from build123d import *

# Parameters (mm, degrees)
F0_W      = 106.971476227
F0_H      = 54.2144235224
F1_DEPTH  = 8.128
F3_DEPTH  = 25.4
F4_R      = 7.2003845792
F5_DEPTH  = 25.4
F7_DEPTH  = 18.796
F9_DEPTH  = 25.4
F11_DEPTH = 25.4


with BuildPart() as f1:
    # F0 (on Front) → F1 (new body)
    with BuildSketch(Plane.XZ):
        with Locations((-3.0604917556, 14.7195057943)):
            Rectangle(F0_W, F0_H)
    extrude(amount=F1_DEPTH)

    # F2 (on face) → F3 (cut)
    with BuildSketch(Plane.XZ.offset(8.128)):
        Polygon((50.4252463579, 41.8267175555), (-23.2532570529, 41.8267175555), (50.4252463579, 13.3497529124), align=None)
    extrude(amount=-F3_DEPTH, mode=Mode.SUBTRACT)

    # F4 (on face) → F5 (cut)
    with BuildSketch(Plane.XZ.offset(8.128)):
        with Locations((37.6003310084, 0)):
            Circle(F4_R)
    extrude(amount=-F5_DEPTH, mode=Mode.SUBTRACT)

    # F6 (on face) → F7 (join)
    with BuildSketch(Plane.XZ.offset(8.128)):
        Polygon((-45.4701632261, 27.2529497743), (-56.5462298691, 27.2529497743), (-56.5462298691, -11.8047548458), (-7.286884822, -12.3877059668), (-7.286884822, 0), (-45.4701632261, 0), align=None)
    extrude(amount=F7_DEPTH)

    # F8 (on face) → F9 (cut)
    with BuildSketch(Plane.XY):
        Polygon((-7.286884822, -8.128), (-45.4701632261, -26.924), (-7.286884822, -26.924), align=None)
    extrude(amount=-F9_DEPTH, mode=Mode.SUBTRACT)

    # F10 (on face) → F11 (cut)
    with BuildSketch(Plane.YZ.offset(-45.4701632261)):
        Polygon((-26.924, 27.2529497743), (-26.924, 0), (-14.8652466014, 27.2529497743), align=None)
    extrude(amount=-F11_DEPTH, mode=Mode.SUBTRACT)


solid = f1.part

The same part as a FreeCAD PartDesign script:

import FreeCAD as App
import Part
import Sketcher

V = App.Vector
Q = App.Units.Quantity


def add_polygon(sketch, points):
    """Adds a closed chain of lines whose ends are joined by coincident constraints."""
    first, n = sketch.GeometryCount, len(points)
    for a, b in zip(points, points[1:] + points[:1]):
        sketch.addGeometry(Part.LineSegment(App.Vector(*a, 0), App.Vector(*b, 0)), False)
    for i in range(n):
        sketch.addConstraint(Sketcher.Constraint("Coincident", first + i, 2, first + (i + 1) % n, 1))

doc = App.newDocument("Part")
params = doc.addObject("Spreadsheet::Sheet", "Params")
for row, (alias, value) in enumerate([
    ("pad1_length", "0.32 in"),
    ("pocket1_length", "1 in"),
    ("pocket2_length", "1 in"),
    ("pad2_length", "0.74 in"),
    ("sketch5_height", "0.74 in"),
    ("pocket3_length", "1 in"),
    ("pocket4_length", "1 in"),
], start=1):
    params.set(f"A{row}", alias)
    params.set(f"B{row}", "=" + value)
    params.setAlias(f"B{row}", alias)

body = doc.addObject("PartDesign::Body", "Body")

# Sketch on XZ plane
sketch1 = body.newObject("Sketcher::SketchObject", "Sketch")
sketch1.AttachmentSupport = (doc.getObject("XZ_Plane"), [""])
sketch1.MapMode = "FlatFace"
add_polygon(sketch1, [(-56.54623, 41.826718), (-56.54623, -12.387706), (50.425246, -12.387706), (50.425246, 41.826718)])  # lines 0-3
sketch1.addConstraint([
    Sketcher.Constraint("Vertical", 0),
    Sketcher.Constraint("Horizontal", 1),
    Sketcher.Constraint("Vertical", 2),
    Sketcher.Constraint("Horizontal", 3),
    Sketcher.Constraint("DistanceX", 1, 1, 1, 2, 106.971476),
    Sketcher.Constraint("DistanceY", 0, 2, 0, 1, 54.214424),
    Sketcher.Constraint("DistanceX", 0, 2, -1, 1, 56.54623),
    Sketcher.Constraint("DistanceY", 0, 2, -1, 1, 12.387706),
])
pad1 = body.newObject("PartDesign::Pad", "Pad")
pad1.Profile = sketch1
pad1.setExpression("Length", "Params.pad1_length")

# Sketch on XZ plane
sketch2 = body.newObject("Sketcher::SketchObject", "Sketch001")
sketch2.AttachmentSupport = (doc.getObject("XZ_Plane"), [""])
sketch2.MapMode = "FlatFace"
sketch2.AttachmentOffset = App.Placement(V(0, 0, 0.32 * 25.4), App.Rotation())
add_polygon(sketch2, [(50.425246, 41.826718), (-23.253257, 41.826718), (50.425246, 13.349753)])  # lines 0-2
sketch2.addConstraint([
    Sketcher.Constraint("Horizontal", 0),
    Sketcher.Constraint("Vertical", 2),
    Sketcher.Constraint("Distance", 1, 78.990249),
    Sketcher.Constraint("DistanceX", 0, 2, 0, 1, 73.678503),
    Sketcher.Constraint("DistanceX", 0, 2, -1, 1, 23.253257),
    Sketcher.Constraint("DistanceY", -1, 1, 0, 2, 41.826718),
])
pocket1 = body.newObject("PartDesign::Pocket", "Pocket")
pocket1.Profile = sketch2
pocket1.setExpression("Length", "Params.pocket1_length")

# Sketch on XZ plane
sketch3 = body.newObject("Sketcher::SketchObject", "Sketch002")
sketch3.AttachmentSupport = (doc.getObject("XZ_Plane"), [""])
sketch3.MapMode = "FlatFace"
sketch3.AttachmentOffset = App.Placement(V(0, 0, 0.32 * 25.4), App.Rotation())
sketch3.addGeometry(Part.Circle(V(37.600331, 0, 0), V(0, 0, 1), 7.200385), False)
sketch3.addConstraint([
    Sketcher.Constraint("PointOnObject", 0, 3, -1),
    Sketcher.Constraint("Diameter", 0, 14.400769),
    Sketcher.Constraint("DistanceX", -1, 1, 0, 3, 37.600331),
])
pocket2 = body.newObject("PartDesign::Pocket", "Pocket001")
pocket2.Profile = sketch3
pocket2.setExpression("Length", "Params.pocket2_length")

# Sketch on XZ plane
sketch4 = body.newObject("Sketcher::SketchObject", "Sketch003")
sketch4.AttachmentSupport = (doc.getObject("XZ_Plane"), [""])
sketch4.MapMode = "FlatFace"
sketch4.AttachmentOffset = App.Placement(V(0, 0, 0.32 * 25.4), App.Rotation())
add_polygon(sketch4, [(-45.470163, 27.25295), (-56.54623, 27.25295), (-56.54623, -11.804755), (-7.286885, -12.387706), (-7.286885, 0), (-45.470163, 0)])  # lines 0-5
sketch4.addConstraint([
    Sketcher.Constraint("Horizontal", 0),
    Sketcher.Constraint("Vertical", 1),
    Sketcher.Constraint("Vertical", 3),
    Sketcher.Constraint("Horizontal", 4),
    Sketcher.Constraint("Vertical", 5),
    Sketcher.Constraint("PointOnObject", 3, 2, -1),
    Sketcher.Constraint("DistanceX", 4, 2, 4, 1, 38.183278),
    Sketcher.Constraint("DistanceY", 5, 1, 5, 2, 27.25295),
    Sketcher.Constraint("DistanceX", 0, 2, 0, 1, 11.076067),
    Sketcher.Constraint("DistanceY", 1, 2, 1, 1, 39.057705),
    Sketcher.Constraint("DistanceY", 3, 1, 3, 2, 12.387706),
    Sketcher.Constraint("DistanceX", 0, 2, -1, 1, 56.54623),
])
pad2 = body.newObject("PartDesign::Pad", "Pad001")
pad2.Profile = sketch4
pad2.setExpression("Length", "Params.pad2_length")

# Sketch on XY plane
sketch5 = body.newObject("Sketcher::SketchObject", "Sketch004")
sketch5.AttachmentSupport = (doc.getObject("XY_Plane"), [""])
sketch5.MapMode = "FlatFace"
add_polygon(sketch5, [(-7.286885, -8.128), (-45.470163, -26.924), (-7.286885, -26.924)])  # lines 0-2
sketch5.addConstraint([
    Sketcher.Constraint("Horizontal", 1),
    Sketcher.Constraint("Vertical", 2),
    Sketcher.Constraint("DistanceY", 2, 1, 2, 2, Q("0.74 in")),
    Sketcher.Constraint("DistanceY", 0, 2, -1, 1, Q("1.06 in")),
    Sketcher.Constraint("DistanceX", 1, 1, 1, 2, 38.183278),
    Sketcher.Constraint("DistanceX", 0, 2, -1, 1, 45.470163),
])
sketch5.setExpression("Constraints[5]", "Params.sketch5_height")
pocket3 = body.newObject("PartDesign::Pocket", "Pocket002")
pocket3.Profile = sketch5
pocket3.setExpression("Length", "Params.pocket3_length")

# Sketch on YZ plane
sketch6 = body.newObject("Sketcher::SketchObject", "Sketch005")
sketch6.AttachmentSupport = (doc.getObject("YZ_Plane"), [""])
sketch6.MapMode = "FlatFace"
sketch6.AttachmentOffset = App.Placement(V(0, 0, -45.470163), App.Rotation())
add_polygon(sketch6, [(-26.924, 27.25295), (-26.924, 0), (-14.865247, 27.25295)])  # lines 0-2
sketch6.addConstraint([
    Sketcher.Constraint("Vertical", 0),
    Sketcher.Constraint("Horizontal", 2),
    Sketcher.Constraint("PointOnObject", 0, 2, -1),
    Sketcher.Constraint("DistanceX", 0, 2, -1, 1, Q("1.06 in")),
    Sketcher.Constraint("DistanceY", 0, 2, 0, 1, 27.25295),
    Sketcher.Constraint("DistanceX", 2, 2, 2, 1, 12.058753),
])
pocket4 = body.newObject("PartDesign::Pocket", "Pocket003")
pocket4.Profile = sketch6
pocket4.setExpression("Length", "Params.pocket4_length")

doc.recompute()
